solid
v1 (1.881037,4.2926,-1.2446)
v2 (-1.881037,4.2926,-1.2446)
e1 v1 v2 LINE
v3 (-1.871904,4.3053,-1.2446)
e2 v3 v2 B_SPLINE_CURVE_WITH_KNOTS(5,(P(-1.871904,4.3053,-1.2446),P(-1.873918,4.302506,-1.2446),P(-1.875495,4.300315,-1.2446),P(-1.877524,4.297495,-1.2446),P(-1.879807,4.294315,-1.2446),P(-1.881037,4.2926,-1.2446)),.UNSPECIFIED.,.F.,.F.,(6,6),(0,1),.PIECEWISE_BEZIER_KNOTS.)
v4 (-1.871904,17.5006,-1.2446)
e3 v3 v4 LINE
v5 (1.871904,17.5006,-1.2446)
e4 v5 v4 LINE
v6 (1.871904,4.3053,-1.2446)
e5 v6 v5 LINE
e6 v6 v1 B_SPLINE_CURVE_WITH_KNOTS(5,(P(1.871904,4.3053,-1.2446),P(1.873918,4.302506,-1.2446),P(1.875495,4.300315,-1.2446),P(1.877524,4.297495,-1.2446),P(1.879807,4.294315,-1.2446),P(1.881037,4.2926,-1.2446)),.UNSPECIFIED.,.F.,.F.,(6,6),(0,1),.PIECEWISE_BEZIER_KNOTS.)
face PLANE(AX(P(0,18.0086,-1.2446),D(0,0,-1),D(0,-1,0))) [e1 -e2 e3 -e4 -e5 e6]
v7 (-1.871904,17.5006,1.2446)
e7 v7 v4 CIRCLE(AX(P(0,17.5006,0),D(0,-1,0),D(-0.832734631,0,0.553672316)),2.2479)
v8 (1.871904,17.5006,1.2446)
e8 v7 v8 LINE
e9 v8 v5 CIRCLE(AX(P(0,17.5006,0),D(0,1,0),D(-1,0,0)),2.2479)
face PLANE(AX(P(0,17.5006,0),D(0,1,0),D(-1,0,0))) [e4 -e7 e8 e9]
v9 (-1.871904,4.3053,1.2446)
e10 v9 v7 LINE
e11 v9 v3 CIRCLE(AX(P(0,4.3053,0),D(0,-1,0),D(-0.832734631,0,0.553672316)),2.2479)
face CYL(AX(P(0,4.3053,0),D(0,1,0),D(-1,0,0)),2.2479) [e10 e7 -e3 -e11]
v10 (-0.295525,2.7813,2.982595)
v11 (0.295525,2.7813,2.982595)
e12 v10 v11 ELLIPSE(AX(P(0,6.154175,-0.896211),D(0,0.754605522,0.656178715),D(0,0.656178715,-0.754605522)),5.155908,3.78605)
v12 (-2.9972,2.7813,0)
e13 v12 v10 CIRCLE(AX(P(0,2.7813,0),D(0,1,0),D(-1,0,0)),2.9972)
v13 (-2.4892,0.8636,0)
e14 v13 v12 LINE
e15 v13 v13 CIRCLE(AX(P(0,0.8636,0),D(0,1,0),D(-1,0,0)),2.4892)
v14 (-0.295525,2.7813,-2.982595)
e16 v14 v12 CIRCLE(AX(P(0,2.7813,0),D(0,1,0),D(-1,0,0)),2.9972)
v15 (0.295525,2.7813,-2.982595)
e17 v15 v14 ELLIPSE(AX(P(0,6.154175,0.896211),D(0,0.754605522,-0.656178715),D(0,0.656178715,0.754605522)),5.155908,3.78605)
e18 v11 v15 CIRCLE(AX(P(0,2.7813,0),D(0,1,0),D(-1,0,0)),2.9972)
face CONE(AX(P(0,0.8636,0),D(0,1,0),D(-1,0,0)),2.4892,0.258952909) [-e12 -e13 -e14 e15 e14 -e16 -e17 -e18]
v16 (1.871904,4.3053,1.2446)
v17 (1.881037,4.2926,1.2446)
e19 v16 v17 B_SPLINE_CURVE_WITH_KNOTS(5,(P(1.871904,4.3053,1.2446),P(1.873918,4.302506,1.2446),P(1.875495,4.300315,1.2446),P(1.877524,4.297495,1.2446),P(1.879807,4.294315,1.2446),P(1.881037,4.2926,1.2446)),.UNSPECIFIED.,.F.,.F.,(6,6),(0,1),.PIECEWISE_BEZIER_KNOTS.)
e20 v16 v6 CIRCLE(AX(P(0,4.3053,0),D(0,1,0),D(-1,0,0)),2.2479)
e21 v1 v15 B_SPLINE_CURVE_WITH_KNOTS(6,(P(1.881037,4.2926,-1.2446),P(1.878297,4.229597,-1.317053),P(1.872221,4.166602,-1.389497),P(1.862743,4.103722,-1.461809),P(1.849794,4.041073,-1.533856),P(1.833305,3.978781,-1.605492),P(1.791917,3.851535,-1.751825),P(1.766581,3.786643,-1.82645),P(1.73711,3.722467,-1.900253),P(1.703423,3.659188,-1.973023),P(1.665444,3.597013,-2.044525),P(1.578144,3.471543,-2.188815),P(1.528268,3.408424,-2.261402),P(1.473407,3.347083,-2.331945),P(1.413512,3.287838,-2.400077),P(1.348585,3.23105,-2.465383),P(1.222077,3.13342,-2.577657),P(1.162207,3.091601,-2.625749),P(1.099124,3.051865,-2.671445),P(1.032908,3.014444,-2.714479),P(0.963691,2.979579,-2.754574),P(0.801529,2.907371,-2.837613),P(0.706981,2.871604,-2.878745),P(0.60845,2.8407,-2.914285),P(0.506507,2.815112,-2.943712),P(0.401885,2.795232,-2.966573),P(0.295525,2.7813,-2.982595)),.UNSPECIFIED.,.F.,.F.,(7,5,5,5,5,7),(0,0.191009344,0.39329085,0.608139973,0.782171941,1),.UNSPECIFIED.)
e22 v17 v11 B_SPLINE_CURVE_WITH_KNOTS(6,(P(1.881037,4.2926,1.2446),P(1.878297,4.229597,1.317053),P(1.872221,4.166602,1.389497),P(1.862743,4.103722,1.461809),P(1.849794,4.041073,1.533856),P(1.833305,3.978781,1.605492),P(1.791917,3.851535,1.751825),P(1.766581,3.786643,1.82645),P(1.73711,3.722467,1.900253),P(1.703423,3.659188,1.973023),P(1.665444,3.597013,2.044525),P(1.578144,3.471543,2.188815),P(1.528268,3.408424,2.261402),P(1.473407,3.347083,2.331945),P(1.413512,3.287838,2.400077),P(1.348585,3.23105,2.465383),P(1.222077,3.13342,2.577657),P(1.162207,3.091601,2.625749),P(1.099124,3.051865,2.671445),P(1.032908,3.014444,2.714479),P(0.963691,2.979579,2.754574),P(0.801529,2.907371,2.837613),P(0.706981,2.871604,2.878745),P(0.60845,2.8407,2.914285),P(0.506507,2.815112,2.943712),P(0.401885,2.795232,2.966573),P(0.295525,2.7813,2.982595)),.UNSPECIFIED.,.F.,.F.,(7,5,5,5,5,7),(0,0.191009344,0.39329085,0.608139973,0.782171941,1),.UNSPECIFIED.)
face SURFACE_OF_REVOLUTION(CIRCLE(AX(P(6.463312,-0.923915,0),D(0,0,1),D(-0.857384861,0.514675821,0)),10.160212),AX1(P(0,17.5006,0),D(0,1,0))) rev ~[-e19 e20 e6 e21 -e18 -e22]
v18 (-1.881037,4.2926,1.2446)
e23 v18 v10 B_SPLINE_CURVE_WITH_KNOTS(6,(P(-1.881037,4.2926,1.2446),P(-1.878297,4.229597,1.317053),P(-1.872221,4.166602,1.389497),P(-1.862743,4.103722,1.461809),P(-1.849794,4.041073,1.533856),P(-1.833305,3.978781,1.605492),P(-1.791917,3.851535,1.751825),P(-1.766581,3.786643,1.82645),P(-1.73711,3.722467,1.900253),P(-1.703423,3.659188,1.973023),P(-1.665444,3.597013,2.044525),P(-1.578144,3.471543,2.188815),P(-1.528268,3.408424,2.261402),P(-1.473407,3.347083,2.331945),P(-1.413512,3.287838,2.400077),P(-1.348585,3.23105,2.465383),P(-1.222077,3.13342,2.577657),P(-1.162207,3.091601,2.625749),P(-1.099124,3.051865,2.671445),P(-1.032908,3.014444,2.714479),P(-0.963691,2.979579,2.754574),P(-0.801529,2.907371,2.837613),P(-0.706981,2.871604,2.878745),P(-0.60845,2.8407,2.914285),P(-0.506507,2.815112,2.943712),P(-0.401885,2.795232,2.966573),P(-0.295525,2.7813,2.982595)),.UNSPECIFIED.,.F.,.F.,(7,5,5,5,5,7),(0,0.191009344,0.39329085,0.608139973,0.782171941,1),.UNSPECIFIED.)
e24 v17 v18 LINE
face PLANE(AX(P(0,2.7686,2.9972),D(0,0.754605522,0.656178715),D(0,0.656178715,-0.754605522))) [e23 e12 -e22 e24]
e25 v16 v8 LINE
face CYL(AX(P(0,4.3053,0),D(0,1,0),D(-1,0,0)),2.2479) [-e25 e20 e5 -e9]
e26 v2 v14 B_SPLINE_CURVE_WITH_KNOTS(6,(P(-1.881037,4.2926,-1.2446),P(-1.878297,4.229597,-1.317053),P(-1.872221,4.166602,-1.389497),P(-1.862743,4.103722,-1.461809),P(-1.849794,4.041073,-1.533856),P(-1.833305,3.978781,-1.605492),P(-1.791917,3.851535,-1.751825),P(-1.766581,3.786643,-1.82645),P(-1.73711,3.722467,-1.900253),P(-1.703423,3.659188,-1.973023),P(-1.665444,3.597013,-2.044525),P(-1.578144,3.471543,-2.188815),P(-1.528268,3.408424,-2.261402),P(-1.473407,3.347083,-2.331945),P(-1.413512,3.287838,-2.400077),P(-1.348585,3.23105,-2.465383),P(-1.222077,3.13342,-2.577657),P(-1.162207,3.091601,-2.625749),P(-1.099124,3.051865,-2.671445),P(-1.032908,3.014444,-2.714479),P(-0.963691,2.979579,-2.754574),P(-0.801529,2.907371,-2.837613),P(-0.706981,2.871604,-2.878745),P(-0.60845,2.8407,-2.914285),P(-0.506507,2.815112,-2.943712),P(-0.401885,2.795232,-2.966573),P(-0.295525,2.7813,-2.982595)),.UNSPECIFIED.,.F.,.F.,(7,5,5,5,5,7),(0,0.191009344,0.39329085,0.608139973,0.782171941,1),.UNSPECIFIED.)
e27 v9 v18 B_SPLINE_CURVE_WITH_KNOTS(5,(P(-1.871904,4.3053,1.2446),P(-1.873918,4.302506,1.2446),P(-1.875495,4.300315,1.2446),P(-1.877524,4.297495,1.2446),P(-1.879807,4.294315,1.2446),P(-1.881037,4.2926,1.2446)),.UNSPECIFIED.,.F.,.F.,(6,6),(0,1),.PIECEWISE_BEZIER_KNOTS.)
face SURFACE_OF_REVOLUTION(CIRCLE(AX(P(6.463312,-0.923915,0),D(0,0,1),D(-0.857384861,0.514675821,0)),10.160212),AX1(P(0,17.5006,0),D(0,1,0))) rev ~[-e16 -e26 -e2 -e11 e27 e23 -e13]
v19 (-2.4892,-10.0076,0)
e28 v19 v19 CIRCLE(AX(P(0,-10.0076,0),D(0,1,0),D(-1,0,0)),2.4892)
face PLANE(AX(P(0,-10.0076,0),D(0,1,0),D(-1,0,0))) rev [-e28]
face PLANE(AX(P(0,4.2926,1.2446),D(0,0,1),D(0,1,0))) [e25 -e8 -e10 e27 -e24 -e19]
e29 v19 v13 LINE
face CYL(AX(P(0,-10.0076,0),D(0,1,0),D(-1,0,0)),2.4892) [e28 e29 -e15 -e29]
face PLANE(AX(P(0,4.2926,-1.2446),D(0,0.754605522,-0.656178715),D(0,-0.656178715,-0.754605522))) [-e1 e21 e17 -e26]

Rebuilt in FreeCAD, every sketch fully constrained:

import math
import FreeCAD as App
import Part
import Sketcher
Q = App.Units.Quantity


def add_polygon(sketch, points):
    """Adds a closed chain of lines whose ends are joined by coincident constraints."""
    first, n = sketch.GeometryCount, len(points)
    for a, b in zip(points, points[1:] + points[:1]):
        sketch.addGeometry(Part.LineSegment(App.Vector(*a, 0), App.Vector(*b, 0)), False)
    for i in range(n):
        sketch.addConstraint(Sketcher.Constraint("Coincident", first + i, 2, first + (i + 1) % n, 1))

doc = App.newDocument("Part")
body = doc.addObject("PartDesign::Body", "Body")

# Sketch on XY plane
sketch1 = body.newObject("Sketcher::SketchObject", "Sketch")
sketch1.AttachmentSupport = (doc.getObject("XY_Plane"), [""])
sketch1.MapMode = "FlatFace"
sketch1.addGeometry(Part.LineSegment(App.Vector(0, -10.0076, 0), App.Vector(0, 17.5006, 0)), False)
sketch1.addGeometry(Part.LineSegment(App.Vector(0, 17.5006, 0), App.Vector(-2.2479, 17.5006, 0)), False)
sketch1.addGeometry(Part.LineSegment(App.Vector(-2.2479, 17.5006, 0), App.Vector(-2.2479, 4.3053, 0)), False)
sketch1.addGeometry(Part.ArcOfCircle(Part.Circle(App.Vector(6.4631, -0.9238, 0), App.Vector(0, 0, 1), 10.159971), math.radians(149.024154), math.radians(158.612344)), False)
sketch1.addGeometry(Part.LineSegment(App.Vector(-2.9972, 2.7813, 0), App.Vector(-2.4892, 0.8636, 0)), False)
sketch1.addGeometry(Part.LineSegment(App.Vector(-2.4892, 0.8636, 0), App.Vector(-2.4892, -10.0076, 0)), False)
sketch1.addGeometry(Part.LineSegment(App.Vector(-2.4892, -10.0076, 0), App.Vector(0, -10.0076, 0)), False)
sketch1.addConstraint(Sketcher.Constraint("Coincident", 0, 2, 1, 1))
sketch1.addConstraint(Sketcher.Constraint("Coincident", 1, 2, 2, 1))
sketch1.addConstraint(Sketcher.Constraint("Coincident", 2, 2, 3, 1))
sketch1.addConstraint(Sketcher.Constraint("Coincident", 3, 2, 4, 1))
sketch1.addConstraint(Sketcher.Constraint("Coincident", 4, 2, 5, 1))
sketch1.addConstraint(Sketcher.Constraint("Coincident", 5, 2, 6, 1))
sketch1.addConstraint(Sketcher.Constraint("Coincident", 6, 2, 0, 1))
sketch1.addConstraint(Sketcher.Constraint("Vertical", 0))
sketch1.addConstraint(Sketcher.Constraint("Horizontal", 1))
sketch1.addConstraint(Sketcher.Constraint("Vertical", 2))
sketch1.addConstraint(Sketcher.Constraint("Vertical", 5))
sketch1.addConstraint(Sketcher.Constraint("Horizontal", 6))
sketch1.addConstraint(Sketcher.Constraint("PointOnObject", 0, 2, -2))
sketch1.addConstraint(Sketcher.Constraint("Radius", 3, Q("0.4 in")))
sketch1.addConstraint(Sketcher.Constraint("DistanceX", 6, 1, 6, 2, Q("0.098 in")))
sketch1.addConstraint(Sketcher.Constraint("DistanceY", 0, 1, 0, 2, Q("1.083 in")))
sketch1.addConstraint(Sketcher.Constraint("DistanceY", 5, 2, 5, 1, Q("0.428 in")))
sketch1.addConstraint(Sketcher.Constraint("DistanceY", 3, 2, 2, 2, Q("0.06 in")))
sketch1.addConstraint(Sketcher.Constraint("DistanceX", 3, 2, 4, 2, Q("0.02 in")))
sketch1.addConstraint(Sketcher.Constraint("DistanceX", 1, 2, 1, 1, Q("0.0885 in")))
sketch1.addConstraint(Sketcher.Constraint("DistanceY", 2, 2, 2, 1, Q("0.5195 in")))
sketch1.addConstraint(Sketcher.Constraint("DistanceY", -1, 1, 0, 2, Q("0.689 in")))
revolution = body.newObject("PartDesign::Revolution", "Revolution")
revolution.Profile = sketch1
revolution.ReferenceAxis = (sketch1, ["V_Axis"])
revolution.Angle = 360

# Sketch on YZ plane
sketch2 = body.newObject("Sketcher::SketchObject", "Sketch001")
sketch2.AttachmentSupport = (doc.getObject("YZ_Plane"), [""])
sketch2.MapMode = "FlatFace"
add_polygon(sketch2, [(18.7706, -4.0132), (18.7706, 4.0132), (0.9906, 4.0132), (0.9906, 2.9972), (2.7686, 2.9972), (4.2926, 1.2446), (18.0086, 1.2446), (18.0086, -1.2446), (4.2926, -1.2446), (2.7686, -2.9972), (0.9906, -2.9972), (0.9906, -4.0132)])  # lines 0-11
sketch2.addConstraint(Sketcher.Constraint("Vertical", 0))
sketch2.addConstraint(Sketcher.Constraint("Horizontal", 1))
sketch2.addConstraint(Sketcher.Constraint("Vertical", 2))
sketch2.addConstraint(Sketcher.Constraint("Horizontal", 3))
sketch2.addConstraint(Sketcher.Constraint("Horizontal", 5))
sketch2.addConstraint(Sketcher.Constraint("Vertical", 6))
sketch2.addConstraint(Sketcher.Constraint("Horizontal", 7))
sketch2.addConstraint(Sketcher.Constraint("Horizontal", 9))
sketch2.addConstraint(Sketcher.Constraint("Vertical", 10))
sketch2.addConstraint(Sketcher.Constraint("Horizontal", 11))
sketch2.addConstraint(Sketcher.Constraint("Symmetric", 4, 2, 7, 2, -1))
sketch2.addConstraint(Sketcher.Constraint("Symmetric", 3, 2, 8, 2, -1))
sketch2.addConstraint(Sketcher.Constraint("Symmetric", 1, 2, 10, 2, -1))
sketch2.addConstraint(Sketcher.Constraint("DistanceX", 1, 2, 1, 1, Q("0.7 in")))
sketch2.addConstraint(Sketcher.Constraint("DistanceX", 3, 1, 3, 2, Q("0.07 in")))
sketch2.addConstraint(Sketcher.Constraint("DistanceX", 5, 1, 5, 2, Q("0.54 in")))
sketch2.addConstraint(Sketcher.Constraint("DistanceY", 2, 2, 2, 1, Q("0.04 in")))
sketch2.addConstraint(Sketcher.Constraint("DistanceX", 3, 2, 5, 2, Q("0.6 in")))
sketch2.addConstraint(Sketcher.Constraint("DistanceY", 0, 1, 0, 2, Q("0.316 in")))
sketch2.addConstraint(Sketcher.Constraint("DistanceY", 6, 2, 6, 1, Q("0.098 in")))
sketch2.addConstraint(Sketcher.Constraint("DistanceX", -1, 1, 0, 2, Q("0.739 in")))
pocket1 = body.newObject("PartDesign::Pocket", "Pocket")
pocket1.Profile = sketch2
pocket1.Length = Q("0.2 in")
pocket1.Midplane = True

doc.recompute()
